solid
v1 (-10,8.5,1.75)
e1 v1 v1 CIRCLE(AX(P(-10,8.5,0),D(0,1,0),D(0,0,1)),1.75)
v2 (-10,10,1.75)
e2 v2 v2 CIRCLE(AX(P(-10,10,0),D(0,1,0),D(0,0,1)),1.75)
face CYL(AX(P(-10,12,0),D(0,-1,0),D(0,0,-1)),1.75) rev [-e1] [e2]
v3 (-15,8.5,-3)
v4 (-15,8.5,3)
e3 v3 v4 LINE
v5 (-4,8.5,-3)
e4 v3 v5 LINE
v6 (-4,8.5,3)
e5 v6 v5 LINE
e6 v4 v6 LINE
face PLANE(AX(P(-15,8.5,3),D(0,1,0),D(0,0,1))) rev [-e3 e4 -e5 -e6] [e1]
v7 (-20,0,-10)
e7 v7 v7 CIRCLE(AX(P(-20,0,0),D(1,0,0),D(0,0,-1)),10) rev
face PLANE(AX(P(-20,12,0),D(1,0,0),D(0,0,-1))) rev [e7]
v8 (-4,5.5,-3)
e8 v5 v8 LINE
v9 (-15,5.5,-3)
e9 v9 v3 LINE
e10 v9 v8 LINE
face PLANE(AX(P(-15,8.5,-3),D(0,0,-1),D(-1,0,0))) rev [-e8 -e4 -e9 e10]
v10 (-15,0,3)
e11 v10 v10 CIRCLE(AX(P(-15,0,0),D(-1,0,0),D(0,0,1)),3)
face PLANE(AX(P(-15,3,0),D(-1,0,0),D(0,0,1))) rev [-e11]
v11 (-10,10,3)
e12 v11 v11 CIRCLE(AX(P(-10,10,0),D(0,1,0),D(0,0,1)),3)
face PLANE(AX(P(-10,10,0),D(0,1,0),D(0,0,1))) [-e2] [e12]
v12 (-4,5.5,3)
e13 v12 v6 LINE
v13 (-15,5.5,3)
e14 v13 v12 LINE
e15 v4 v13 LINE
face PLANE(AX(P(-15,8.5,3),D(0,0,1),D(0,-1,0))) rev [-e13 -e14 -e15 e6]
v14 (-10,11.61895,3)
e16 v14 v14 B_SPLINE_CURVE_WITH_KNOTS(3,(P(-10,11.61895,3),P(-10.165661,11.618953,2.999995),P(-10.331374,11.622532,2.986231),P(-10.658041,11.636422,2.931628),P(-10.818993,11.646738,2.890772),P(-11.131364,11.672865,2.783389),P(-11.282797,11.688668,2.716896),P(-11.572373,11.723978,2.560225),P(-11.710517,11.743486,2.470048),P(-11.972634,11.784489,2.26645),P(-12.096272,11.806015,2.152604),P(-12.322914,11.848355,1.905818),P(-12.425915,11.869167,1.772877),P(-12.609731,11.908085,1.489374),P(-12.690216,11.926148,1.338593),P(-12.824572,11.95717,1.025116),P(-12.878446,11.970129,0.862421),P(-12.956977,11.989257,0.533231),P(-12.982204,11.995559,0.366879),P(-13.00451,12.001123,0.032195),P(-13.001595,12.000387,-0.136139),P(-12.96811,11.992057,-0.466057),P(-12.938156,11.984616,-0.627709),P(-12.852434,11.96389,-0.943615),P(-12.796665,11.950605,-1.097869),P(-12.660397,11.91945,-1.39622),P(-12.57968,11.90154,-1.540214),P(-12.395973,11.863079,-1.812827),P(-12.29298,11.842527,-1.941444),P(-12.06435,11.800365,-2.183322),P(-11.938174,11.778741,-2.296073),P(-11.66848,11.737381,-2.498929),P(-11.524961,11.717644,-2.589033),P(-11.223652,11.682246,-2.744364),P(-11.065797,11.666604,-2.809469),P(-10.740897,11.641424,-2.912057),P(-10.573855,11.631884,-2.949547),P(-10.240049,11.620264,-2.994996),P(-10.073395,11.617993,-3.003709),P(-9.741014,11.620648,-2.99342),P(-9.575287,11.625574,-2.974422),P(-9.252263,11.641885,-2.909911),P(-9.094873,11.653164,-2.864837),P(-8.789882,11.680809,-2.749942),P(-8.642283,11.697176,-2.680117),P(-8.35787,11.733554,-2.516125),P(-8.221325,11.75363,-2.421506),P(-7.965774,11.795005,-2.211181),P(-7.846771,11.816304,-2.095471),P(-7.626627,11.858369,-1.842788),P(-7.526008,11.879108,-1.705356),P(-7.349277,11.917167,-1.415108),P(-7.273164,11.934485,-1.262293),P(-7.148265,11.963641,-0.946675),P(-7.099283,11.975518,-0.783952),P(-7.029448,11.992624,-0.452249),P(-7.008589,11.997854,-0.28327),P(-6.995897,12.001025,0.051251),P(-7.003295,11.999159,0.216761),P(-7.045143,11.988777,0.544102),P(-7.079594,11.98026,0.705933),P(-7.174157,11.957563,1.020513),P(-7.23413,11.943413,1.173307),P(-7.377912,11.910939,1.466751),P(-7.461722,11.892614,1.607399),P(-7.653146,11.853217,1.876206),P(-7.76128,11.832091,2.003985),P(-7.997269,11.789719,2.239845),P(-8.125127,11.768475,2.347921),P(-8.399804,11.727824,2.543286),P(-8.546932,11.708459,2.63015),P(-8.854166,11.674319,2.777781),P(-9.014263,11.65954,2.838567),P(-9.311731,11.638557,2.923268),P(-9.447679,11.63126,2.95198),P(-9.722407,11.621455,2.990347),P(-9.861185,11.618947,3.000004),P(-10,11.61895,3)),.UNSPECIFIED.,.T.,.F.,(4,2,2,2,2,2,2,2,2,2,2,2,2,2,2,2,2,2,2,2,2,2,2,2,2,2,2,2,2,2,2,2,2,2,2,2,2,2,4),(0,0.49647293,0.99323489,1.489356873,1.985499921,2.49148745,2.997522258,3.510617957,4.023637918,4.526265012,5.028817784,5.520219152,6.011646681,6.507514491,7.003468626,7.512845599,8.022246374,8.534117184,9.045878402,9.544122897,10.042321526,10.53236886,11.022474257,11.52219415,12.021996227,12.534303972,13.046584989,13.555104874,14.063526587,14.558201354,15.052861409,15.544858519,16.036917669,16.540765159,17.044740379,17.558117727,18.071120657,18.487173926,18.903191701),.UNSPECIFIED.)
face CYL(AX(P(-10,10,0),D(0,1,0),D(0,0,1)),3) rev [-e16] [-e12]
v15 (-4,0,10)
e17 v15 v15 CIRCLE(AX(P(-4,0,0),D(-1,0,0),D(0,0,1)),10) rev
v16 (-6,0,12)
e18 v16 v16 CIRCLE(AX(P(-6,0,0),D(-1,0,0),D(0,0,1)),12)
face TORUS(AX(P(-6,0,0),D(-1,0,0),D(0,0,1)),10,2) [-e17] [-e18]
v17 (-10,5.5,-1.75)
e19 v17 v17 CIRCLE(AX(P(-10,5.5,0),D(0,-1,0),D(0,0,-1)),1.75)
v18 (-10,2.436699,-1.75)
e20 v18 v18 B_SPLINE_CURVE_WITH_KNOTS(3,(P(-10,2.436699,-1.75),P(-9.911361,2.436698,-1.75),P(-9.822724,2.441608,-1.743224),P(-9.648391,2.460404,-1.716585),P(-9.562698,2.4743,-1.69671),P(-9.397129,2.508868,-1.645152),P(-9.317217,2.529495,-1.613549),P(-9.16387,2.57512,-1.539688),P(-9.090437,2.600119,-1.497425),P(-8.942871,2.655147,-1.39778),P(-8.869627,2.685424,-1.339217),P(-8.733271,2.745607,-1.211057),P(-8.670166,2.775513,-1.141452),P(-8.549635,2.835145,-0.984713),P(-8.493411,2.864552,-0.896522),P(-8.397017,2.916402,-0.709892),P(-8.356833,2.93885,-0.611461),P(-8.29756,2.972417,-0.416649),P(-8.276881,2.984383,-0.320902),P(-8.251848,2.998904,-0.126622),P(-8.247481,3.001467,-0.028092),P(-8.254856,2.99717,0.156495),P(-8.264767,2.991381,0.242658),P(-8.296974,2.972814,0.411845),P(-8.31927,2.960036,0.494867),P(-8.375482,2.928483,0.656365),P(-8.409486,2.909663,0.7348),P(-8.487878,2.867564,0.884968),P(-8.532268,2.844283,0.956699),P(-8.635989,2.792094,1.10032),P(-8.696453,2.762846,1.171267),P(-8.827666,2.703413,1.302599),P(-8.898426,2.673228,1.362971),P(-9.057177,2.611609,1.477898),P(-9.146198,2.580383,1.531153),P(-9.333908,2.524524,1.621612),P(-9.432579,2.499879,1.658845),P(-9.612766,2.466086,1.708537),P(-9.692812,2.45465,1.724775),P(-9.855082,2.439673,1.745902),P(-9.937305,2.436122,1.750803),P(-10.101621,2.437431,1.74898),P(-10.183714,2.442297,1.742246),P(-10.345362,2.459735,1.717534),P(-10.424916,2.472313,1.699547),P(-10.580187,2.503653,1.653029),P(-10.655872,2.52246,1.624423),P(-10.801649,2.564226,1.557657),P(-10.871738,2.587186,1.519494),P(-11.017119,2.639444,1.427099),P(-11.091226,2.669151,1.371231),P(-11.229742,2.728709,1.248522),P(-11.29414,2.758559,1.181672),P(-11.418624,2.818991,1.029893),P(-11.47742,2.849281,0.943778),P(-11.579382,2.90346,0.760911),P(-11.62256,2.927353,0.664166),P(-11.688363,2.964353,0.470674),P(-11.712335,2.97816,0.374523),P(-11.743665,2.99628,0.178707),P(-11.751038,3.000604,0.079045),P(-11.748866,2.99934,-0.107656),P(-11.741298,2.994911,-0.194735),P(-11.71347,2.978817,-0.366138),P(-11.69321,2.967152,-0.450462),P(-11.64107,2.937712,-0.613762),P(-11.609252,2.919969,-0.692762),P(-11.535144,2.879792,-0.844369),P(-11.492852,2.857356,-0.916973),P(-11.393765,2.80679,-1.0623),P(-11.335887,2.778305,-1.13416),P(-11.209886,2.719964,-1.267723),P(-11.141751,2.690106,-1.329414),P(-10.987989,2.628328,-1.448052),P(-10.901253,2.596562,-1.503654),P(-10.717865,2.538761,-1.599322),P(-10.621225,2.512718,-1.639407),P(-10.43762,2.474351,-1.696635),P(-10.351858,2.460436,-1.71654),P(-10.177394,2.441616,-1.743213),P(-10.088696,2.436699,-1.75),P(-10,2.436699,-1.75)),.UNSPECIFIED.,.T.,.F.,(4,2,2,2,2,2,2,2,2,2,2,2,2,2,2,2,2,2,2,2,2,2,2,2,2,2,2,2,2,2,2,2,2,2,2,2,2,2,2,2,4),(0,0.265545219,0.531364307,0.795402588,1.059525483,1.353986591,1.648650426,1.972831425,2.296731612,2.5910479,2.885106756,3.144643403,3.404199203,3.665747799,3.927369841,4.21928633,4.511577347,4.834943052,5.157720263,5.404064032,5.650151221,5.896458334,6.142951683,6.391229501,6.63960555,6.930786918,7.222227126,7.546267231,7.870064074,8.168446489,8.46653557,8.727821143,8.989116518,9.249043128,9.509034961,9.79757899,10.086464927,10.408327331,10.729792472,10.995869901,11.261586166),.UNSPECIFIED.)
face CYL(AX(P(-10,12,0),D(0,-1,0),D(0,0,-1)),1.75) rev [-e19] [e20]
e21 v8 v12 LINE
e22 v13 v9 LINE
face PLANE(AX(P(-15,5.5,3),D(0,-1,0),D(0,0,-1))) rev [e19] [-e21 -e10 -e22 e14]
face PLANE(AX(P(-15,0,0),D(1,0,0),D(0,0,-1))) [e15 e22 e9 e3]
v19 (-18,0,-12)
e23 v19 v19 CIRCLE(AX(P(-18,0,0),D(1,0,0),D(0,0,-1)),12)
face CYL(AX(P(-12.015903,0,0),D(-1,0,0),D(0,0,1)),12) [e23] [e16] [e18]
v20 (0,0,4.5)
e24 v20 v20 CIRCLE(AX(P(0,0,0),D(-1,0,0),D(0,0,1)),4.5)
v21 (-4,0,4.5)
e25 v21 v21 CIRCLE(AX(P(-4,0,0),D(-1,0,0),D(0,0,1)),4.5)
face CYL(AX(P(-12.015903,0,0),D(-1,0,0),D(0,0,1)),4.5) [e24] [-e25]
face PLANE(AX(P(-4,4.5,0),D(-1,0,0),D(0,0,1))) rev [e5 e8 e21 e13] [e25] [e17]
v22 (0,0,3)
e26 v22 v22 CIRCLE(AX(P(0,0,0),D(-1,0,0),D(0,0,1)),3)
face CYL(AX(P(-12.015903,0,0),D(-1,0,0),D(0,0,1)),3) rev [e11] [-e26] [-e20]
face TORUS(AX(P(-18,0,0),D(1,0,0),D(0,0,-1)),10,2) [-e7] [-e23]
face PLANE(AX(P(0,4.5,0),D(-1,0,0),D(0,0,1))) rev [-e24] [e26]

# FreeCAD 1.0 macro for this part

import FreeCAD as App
import Part
import Sketcher

V = App.Vector
Q = App.Units.Quantity


def edges_at(feature, points):
    """Names of the edges that pass closest to the given points."""
    edges = feature.Shape.Edges
    near = lambda p: min(range(len(edges)), key=lambda i: edges[i].distToShape(Part.Vertex(*p))[0])
    return sorted({f"Edge{near(p) + 1}" for p in points})

doc = App.newDocument("Part")
body = doc.addObject("PartDesign::Body", "Body")

sketch1 = body.newObject("Sketcher::SketchObject", "Sketch")
sketch1.AttachmentSupport = (doc.getObject("XY_Plane"), [""])
sketch1.MapMode = "FlatFace"
sketch1.addGeometry([
    Part.LineSegment(V(-15, 3, 0), V(0, 3, 0)),
    Part.LineSegment(V(0, 3, 0), V(0, 4.5, 0)),
    Part.LineSegment(V(0, 4.5, 0), V(-4, 4.5, 0)),
    Part.LineSegment(V(-4, 4.5, 0), V(-4, 12, 0)),
    Part.LineSegment(V(-4, 12, 0), V(-20, 12, 0)),
    Part.LineSegment(V(-20, 12, 0), V(-20, 0, 0)),
    Part.LineSegment(V(-20, 0, 0), V(-15, 0, 0)),
    Part.LineSegment(V(-15, 0, 0), V(-15, 3, 0)),
], False)
sketch1.addConstraint([
    Sketcher.Constraint("Coincident", 0, 2, 1, 1),
    Sketcher.Constraint("Coincident", 1, 2, 2, 1),
    Sketcher.Constraint("Coincident", 2, 2, 3, 1),
    Sketcher.Constraint("Coincident", 3, 2, 4, 1),
    Sketcher.Constraint("Coincident", 4, 2, 5, 1),
    Sketcher.Constraint("Coincident", 5, 2, 6, 1),
    Sketcher.Constraint("Coincident", 6, 2, 7, 1),
    Sketcher.Constraint("Coincident", 7, 2, 0, 1),
    Sketcher.Constraint("Horizontal", 0),
    Sketcher.Constraint("Vertical", 1),
    Sketcher.Constraint("Horizontal", 2),
    Sketcher.Constraint("Vertical", 3),
    Sketcher.Constraint("Horizontal", 4),
    Sketcher.Constraint("Vertical", 5),
    Sketcher.Constraint("Horizontal", 6),
    Sketcher.Constraint("Vertical", 7),
    Sketcher.Constraint("PointOnObject", 0, 2, -2),
    Sketcher.Constraint("PointOnObject", 5, 2, -1),
    Sketcher.Constraint("DistanceX", 0, 1, 0, 2, Q("15 mm")),
    Sketcher.Constraint("DistanceX", 2, 2, 2, 1, Q("4 mm")),
    Sketcher.Constraint("DistanceX", 4, 2, 4, 1, Q("16 mm")),
    Sketcher.Constraint("DistanceY", 5, 2, 5, 1, Q("12 mm")),
    Sketcher.Constraint("DistanceY", 7, 1, 7, 2, Q("3 mm")),
    Sketcher.Constraint("DistanceY", 1, 1, 1, 2, Q("1.5 mm")),
])
revolution = body.newObject("PartDesign::Revolution", "Revolution")
revolution.Profile = sketch1
revolution.ReferenceAxis = (sketch1, ["H_Axis"])
revolution.Angle = 360

sketch2 = body.newObject("Sketcher::SketchObject", "Sketch001")
sketch2.AttachmentSupport = (doc.getObject("XZ_Plane"), [""])
sketch2.MapMode = "FlatFace"
sketch2.addGeometry(Part.Circle(V(-10, 0, 0), V(0, 0, 1), 1.75), False)
sketch2.addConstraint([
    Sketcher.Constraint("PointOnObject", 0, 3, -1),
    Sketcher.Constraint("Diameter", 0, Q("3.5 mm")),
    Sketcher.Constraint("DistanceX", 0, 3, -1, 1, Q("10 mm")),
])
pocket1 = body.newObject("PartDesign::Pocket", "Pocket")
pocket1.Profile = sketch2
pocket1.Type = "ThroughAll"

sketch3 = body.newObject("Sketcher::SketchObject", "Sketch002")
sketch3.AttachmentSupport = (doc.getObject("XZ_Plane"), [""])
sketch3.MapMode = "FlatFace"
sketch3.AttachmentOffset = App.Placement(V(0, 0, -12), App.Rotation())
sketch3.addGeometry(Part.Circle(V(-10, 0, 0), V(0, 0, 1), 3), False)
sketch3.addConstraint([
    Sketcher.Constraint("PointOnObject", 0, 3, -1),
    Sketcher.Constraint("Diameter", 0, Q("6 mm")),
    Sketcher.Constraint("DistanceX", 0, 3, -1, 1, Q("10 mm")),
])
pocket2 = body.newObject("PartDesign::Pocket", "Pocket001")
pocket2.Profile = sketch3
pocket2.Length = 2
pocket2.Reversed = True

sketch4 = body.newObject("Sketcher::SketchObject", "Sketch003")
sketch4.AttachmentSupport = (doc.getObject("YZ_Plane"), [""])
sketch4.MapMode = "FlatFace"
sketch4.addGeometry([
    Part.LineSegment(V(8.5, 3, 0), V(5.5, 3, 0)),
    Part.LineSegment(V(5.5, 3, 0), V(5.5, -3, 0)),
    Part.LineSegment(V(5.5, -3, 0), V(8.5, -3, 0)),
    Part.LineSegment(V(8.5, -3, 0), V(8.5, 3, 0)),
], False)
sketch4.addConstraint([
    Sketcher.Constraint("Coincident", 0, 2, 1, 1),
    Sketcher.Constraint("Coincident", 1, 2, 2, 1),
    Sketcher.Constraint("Coincident", 2, 2, 3, 1),
    Sketcher.Constraint("Coincident", 3, 2, 0, 1),
    Sketcher.Constraint("Horizontal", 0),
    Sketcher.Constraint("Vertical", 1),
    Sketcher.Constraint("Horizontal", 2),
    Sketcher.Constraint("Vertical", 3),
    Sketcher.Constraint("DistanceX", 0, 2, 0, 1, Q("3 mm")),
    Sketcher.Constraint("DistanceY", 1, 2, 1, 1, Q("6 mm")),
    Sketcher.Constraint("DistanceY", -1, 1, 0, 2, Q("3 mm")),
    Sketcher.Constraint("DistanceX", -1, 1, 0, 2, Q("5.5 mm")),
])
pocket3 = body.newObject("PartDesign::Pocket", "Pocket002")
pocket3.Profile = sketch4
pocket3.Length = 15
doc.recompute()

fillet = body.newObject("PartDesign::Fillet", "Fillet")
fillet.Base = (pocket3, edges_at(pocket3, [(-20, 0, -12), (-4, 0, -12)]))
fillet.Radius = 2

doc.recompute()
